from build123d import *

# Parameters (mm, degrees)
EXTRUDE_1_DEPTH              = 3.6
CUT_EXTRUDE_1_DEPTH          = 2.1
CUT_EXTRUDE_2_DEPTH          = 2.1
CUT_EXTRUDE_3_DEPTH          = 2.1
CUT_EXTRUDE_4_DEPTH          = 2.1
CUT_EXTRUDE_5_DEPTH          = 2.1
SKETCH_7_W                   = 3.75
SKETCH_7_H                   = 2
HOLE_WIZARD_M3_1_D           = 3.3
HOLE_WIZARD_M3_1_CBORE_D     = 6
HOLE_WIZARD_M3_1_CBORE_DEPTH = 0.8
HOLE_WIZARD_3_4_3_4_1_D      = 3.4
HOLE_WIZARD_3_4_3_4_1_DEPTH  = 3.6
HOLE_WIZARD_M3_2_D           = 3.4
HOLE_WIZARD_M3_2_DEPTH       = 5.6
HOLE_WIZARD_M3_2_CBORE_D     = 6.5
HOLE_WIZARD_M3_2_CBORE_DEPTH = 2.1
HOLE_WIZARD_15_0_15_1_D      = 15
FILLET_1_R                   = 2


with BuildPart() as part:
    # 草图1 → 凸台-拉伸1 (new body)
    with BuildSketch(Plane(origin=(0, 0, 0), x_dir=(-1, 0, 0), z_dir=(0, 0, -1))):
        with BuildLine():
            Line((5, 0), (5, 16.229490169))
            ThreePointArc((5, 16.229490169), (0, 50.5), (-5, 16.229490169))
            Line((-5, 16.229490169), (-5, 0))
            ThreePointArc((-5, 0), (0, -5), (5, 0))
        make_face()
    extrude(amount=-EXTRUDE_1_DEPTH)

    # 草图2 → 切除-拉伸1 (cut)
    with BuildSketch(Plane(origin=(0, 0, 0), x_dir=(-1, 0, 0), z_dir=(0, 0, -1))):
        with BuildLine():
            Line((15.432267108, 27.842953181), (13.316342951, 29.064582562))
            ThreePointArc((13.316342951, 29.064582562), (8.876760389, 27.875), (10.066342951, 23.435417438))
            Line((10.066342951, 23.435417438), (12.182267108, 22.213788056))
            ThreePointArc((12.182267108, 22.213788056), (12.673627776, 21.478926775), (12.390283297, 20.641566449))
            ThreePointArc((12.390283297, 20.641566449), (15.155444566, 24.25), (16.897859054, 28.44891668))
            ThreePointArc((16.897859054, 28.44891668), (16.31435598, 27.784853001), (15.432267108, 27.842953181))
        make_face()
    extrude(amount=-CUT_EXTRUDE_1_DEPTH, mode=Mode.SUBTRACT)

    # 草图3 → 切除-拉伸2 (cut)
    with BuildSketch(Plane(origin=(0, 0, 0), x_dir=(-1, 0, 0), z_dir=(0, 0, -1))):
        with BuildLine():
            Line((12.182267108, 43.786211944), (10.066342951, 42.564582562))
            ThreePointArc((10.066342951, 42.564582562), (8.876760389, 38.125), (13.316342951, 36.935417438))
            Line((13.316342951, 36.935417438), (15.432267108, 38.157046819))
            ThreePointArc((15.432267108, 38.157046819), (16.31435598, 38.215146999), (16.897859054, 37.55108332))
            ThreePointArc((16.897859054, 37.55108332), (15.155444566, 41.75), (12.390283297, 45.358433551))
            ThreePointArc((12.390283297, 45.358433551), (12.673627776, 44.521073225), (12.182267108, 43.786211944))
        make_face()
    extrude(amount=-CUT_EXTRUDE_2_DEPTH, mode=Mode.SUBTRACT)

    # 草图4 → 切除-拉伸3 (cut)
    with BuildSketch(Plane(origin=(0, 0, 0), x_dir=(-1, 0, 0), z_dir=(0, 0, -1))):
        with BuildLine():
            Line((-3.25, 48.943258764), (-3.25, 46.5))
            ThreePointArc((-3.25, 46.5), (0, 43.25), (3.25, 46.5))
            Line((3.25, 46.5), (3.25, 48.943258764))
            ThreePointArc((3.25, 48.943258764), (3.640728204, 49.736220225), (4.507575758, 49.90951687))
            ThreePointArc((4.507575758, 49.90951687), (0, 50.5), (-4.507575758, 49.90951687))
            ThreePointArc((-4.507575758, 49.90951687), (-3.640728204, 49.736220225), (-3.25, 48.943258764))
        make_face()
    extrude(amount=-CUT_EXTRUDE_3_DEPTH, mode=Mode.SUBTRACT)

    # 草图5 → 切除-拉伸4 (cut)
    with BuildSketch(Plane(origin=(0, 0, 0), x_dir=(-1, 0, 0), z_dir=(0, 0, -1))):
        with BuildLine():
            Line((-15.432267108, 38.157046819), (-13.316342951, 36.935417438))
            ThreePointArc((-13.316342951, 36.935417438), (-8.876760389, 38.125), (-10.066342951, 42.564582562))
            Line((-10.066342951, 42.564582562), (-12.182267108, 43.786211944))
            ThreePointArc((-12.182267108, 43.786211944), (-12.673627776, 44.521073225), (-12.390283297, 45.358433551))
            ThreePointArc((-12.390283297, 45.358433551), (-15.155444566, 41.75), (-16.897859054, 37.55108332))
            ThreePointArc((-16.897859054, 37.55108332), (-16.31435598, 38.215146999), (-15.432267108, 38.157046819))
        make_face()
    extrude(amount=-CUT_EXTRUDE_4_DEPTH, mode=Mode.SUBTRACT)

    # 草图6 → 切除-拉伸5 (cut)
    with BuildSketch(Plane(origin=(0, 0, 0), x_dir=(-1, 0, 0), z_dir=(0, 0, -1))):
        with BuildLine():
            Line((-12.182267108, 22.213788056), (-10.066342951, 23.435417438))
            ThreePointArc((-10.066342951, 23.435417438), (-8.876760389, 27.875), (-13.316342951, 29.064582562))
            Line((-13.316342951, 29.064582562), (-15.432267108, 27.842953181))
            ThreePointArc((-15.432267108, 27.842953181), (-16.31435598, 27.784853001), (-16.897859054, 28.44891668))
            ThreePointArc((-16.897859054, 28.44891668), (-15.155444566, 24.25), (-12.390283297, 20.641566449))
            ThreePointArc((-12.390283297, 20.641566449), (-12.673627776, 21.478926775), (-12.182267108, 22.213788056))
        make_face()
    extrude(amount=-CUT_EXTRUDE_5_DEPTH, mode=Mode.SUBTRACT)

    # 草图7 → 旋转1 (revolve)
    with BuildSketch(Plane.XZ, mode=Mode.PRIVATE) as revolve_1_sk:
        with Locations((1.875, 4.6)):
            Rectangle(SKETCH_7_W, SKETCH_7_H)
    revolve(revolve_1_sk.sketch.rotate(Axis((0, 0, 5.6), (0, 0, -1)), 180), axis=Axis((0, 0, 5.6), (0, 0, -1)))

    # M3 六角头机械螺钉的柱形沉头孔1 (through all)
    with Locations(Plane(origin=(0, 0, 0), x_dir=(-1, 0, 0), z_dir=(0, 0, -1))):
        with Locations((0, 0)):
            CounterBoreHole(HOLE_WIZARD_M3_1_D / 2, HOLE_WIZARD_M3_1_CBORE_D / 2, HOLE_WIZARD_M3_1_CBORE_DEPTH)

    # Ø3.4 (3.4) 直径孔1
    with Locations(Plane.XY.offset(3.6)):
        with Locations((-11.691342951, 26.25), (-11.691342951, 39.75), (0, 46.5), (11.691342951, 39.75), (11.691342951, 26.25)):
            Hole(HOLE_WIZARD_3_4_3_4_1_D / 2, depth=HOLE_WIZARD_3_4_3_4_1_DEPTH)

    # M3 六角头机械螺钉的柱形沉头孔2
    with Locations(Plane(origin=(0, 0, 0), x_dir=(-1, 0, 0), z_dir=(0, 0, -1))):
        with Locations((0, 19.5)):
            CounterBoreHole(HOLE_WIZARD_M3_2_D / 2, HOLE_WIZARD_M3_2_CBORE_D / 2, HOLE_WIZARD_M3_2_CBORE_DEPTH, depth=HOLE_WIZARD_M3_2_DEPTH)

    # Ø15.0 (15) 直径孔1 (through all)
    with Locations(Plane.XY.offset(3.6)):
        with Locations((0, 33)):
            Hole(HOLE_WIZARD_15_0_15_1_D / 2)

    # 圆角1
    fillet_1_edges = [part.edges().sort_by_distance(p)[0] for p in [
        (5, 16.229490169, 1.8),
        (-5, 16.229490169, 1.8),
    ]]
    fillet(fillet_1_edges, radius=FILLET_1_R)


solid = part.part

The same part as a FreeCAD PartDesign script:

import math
import FreeCAD as App
import Part
import Sketcher
from FreeCAD import Vector
Q = App.Units.Quantity


def edges_at(feature, points):
    """Names of the edges that pass closest to the given points."""
    edges = feature.Shape.Edges
    near = lambda p: min(range(len(edges)), key=lambda i: edges[i].distToShape(Part.Vertex(*p))[0])
    return sorted({f"Edge{near(p) + 1}" for p in points})


def add_polygon(sketch, points):
    """Adds a closed chain of lines whose ends are joined by coincident constraints."""
    first, n = sketch.GeometryCount, len(points)
    for a, b in zip(points, points[1:] + points[:1]):
        sketch.addGeometry(Part.LineSegment(App.Vector(*a, 0), App.Vector(*b, 0)), False)
    for i in range(n):
        sketch.addConstraint(Sketcher.Constraint("Coincident", first + i, 2, first + (i + 1) % n, 1))

doc = App.newDocument("Part")
body = doc.addObject("PartDesign::Body", "Body")

sketch1 = body.newObject("Sketcher::SketchObject", "Sketch")
sketch1.AttachmentSupport = (doc.getObject("XY_Plane"), [""])
sketch1.MapMode = "FlatFace"
sketch1.addGeometry([
    Part.LineSegment(Vector(-5, 0, 0), Vector(-5, 16.22949, 0)),
    Part.ArcOfCircle(Part.Circle(Vector(0, 33, 0), Vector(0, 0, 1), 17.5), math.radians(-73.39845), math.radians(253.39845)),
    Part.LineSegment(Vector(5, 16.22949, 0), Vector(5, 0, 0)),
    Part.ArcOfCircle(Part.Circle(Vector(0, 0, 0), Vector(0, 0, 1), 5), math.radians(180), math.radians(360)),
], False)
sketch1.addConstraint([
    Sketcher.Constraint("Coincident", 0, 2, 1, 2),
    Sketcher.Constraint("Coincident", 1, 1, 2, 1),
    Sketcher.Constraint("Tangent", 2, 2, 3, 2),
    Sketcher.Constraint("Tangent", 3, 1, 0, 1),
    Sketcher.Constraint("Vertical", 0),
    Sketcher.Constraint("Vertical", 2),
    Sketcher.Constraint("Coincident", 3, 3, -1, 1),
    Sketcher.Constraint("PointOnObject", 1, 3, -2),
    Sketcher.Constraint("Radius", 3, 5.0),
    Sketcher.Constraint("Radius", 1, 17.5),
    Sketcher.Constraint("DistanceY", -1, 1, 1, 3, 33.0),
])
pad1 = body.newObject("PartDesign::Pad", "Pad")
pad1.Profile = sketch1
pad1.Length = 3.6

sketch2 = body.newObject("Sketcher::SketchObject", "Sketch001")
sketch2.AttachmentSupport = (doc.getObject("XY_Plane"), [""])
sketch2.MapMode = "FlatFace"
sketch2.addGeometry([
    Part.LineSegment(Vector(-15.432267, 27.842953, 0), Vector(-13.316343, 29.064583, 0)),
    Part.ArcOfCircle(Part.Circle(Vector(-11.691343, 26.25, 0), Vector(0, 0, 1), 3.25), math.radians(-60), math.radians(120)),
    Part.LineSegment(Vector(-10.066343, 23.435417, 0), Vector(-12.182267, 22.213788, 0)),
    Part.ArcOfCircle(Part.Circle(Vector(-11.682267, 21.347763, 0), Vector(0, 0, 1), 1), math.radians(120), math.radians(224.926265)),
    Part.ArcOfCircle(Part.Circle(Vector(0, 33, 0), Vector(0, 0, 1), 17.5), math.radians(-164.926265), math.radians(-135.073735)),
    Part.ArcOfCircle(Part.Circle(Vector(-15.932267, 28.708979, 0), Vector(0, 0, 1), 1), math.radians(-164.926265), math.radians(-60)),
], False)
sketch2.addConstraint([
    Sketcher.Constraint("Tangent", 0, 2, 1, 2),
    Sketcher.Constraint("Tangent", 1, 1, 2, 1),
    Sketcher.Constraint("Tangent", 2, 2, 3, 1),
    Sketcher.Constraint("Tangent", 3, 2, 4, 2),
    Sketcher.Constraint("Tangent", 4, 1, 5, 1),
    Sketcher.Constraint("Tangent", 5, 2, 0, 1),
    Sketcher.Constraint("Equal", 3, 5),
    Sketcher.Constraint("PointOnObject", 4, 3, -2),
    Sketcher.Constraint("Parallel", 0, 2),
    Sketcher.Constraint("Equal", 0, 2),
    Sketcher.Constraint("Radius", 3, 1.0),
    Sketcher.Constraint("Radius", 4, 17.5),
    Sketcher.Constraint("Angle", 0, Q("30 deg")),
    Sketcher.Constraint("Radius", 1, 3.25),
    Sketcher.Constraint("DistanceY", -1, 1, 4, 3, 33.0),
    Sketcher.Constraint("DistanceY", -1, 1, 1, 3, 26.25),
])
pocket1 = body.newObject("PartDesign::Pocket", "Pocket")
pocket1.Profile = sketch2
pocket1.Length = 2.1
pocket1.Reversed = True

sketch3 = body.newObject("Sketcher::SketchObject", "Sketch002")
sketch3.AttachmentSupport = (doc.getObject("XY_Plane"), [""])
sketch3.MapMode = "FlatFace"
sketch3.addGeometry([
    Part.LineSegment(Vector(-12.182267, 43.786212, 0), Vector(-10.066343, 42.564583, 0)),
    Part.ArcOfCircle(Part.Circle(Vector(-11.691343, 39.75, 0), Vector(0, 0, 1), 3.25), math.radians(-120), math.radians(60)),
    Part.LineSegment(Vector(-13.316343, 36.935417, 0), Vector(-15.432267, 38.157047, 0)),
    Part.ArcOfCircle(Part.Circle(Vector(-15.932267, 37.291021, 0), Vector(0, 0, 1), 1), math.radians(60), math.radians(164.926265)),
    Part.ArcOfCircle(Part.Circle(Vector(0, 33, 0), Vector(0, 0, 1), 17.5), math.radians(135.073735), math.radians(164.926265)),
    Part.ArcOfCircle(Part.Circle(Vector(-11.682267, 44.652237, 0), Vector(0, 0, 1), 1), math.radians(135.073735), math.radians(240)),
], False)
sketch3.addConstraint([
    Sketcher.Constraint("Tangent", 0, 2, 1, 2),
    Sketcher.Constraint("Tangent", 1, 1, 2, 1),
    Sketcher.Constraint("Tangent", 2, 2, 3, 1),
    Sketcher.Constraint("Tangent", 3, 2, 4, 2),
    Sketcher.Constraint("Tangent", 4, 1, 5, 1),
    Sketcher.Constraint("Tangent", 5, 2, 0, 1),
    Sketcher.Constraint("Equal", 3, 5),
    Sketcher.Constraint("PointOnObject", 4, 3, -2),
    Sketcher.Constraint("Parallel", 0, 2),
    Sketcher.Constraint("Equal", 0, 2),
    Sketcher.Constraint("Radius", 3, 1.0),
    Sketcher.Constraint("Radius", 4, 17.5),
    Sketcher.Constraint("Angle", 0, Q("-30 deg")),
    Sketcher.Constraint("Radius", 1, 3.25),
    Sketcher.Constraint("DistanceY", -1, 1, 4, 3, 33.0),
    Sketcher.Constraint("DistanceY", -1, 1, 1, 3, 39.75),
])
pocket2 = body.newObject("PartDesign::Pocket", "Pocket001")
pocket2.Profile = sketch3
pocket2.Length = 2.1
pocket2.Reversed = True

sketch4 = body.newObject("Sketcher::SketchObject", "Sketch003")
sketch4.AttachmentSupport = (doc.getObject("XY_Plane"), [""])
sketch4.MapMode = "FlatFace"
sketch4.addGeometry([
    Part.LineSegment(Vector(3.25, 48.943259, 0), Vector(3.25, 46.5, 0)),
    Part.ArcOfCircle(Part.Circle(Vector(0, 46.5, 0), Vector(0, 0, 1), 3.25), math.radians(180), math.radians(360)),
    Part.LineSegment(Vector(-3.25, 46.5, 0), Vector(-3.25, 48.943259, 0)),
    Part.ArcOfCircle(Part.Circle(Vector(-4.25, 48.943259, 0), Vector(0, 0, 1), 1), math.radians(0), math.radians(104.926265)),
    Part.ArcOfCircle(Part.Circle(Vector(0, 33, 0), Vector(0, 0, 1), 17.5), math.radians(75.073735), math.radians(104.926265)),
    Part.ArcOfCircle(Part.Circle(Vector(4.25, 48.943259, 0), Vector(0, 0, 1), 1), math.radians(75.073735), math.radians(180)),
], False)
sketch4.addConstraint([
    Sketcher.Constraint("Tangent", 0, 2, 1, 2),
    Sketcher.Constraint("Tangent", 1, 1, 2, 1),
    Sketcher.Constraint("Tangent", 2, 2, 3, 1),
    Sketcher.Constraint("Tangent", 3, 2, 4, 2),
    Sketcher.Constraint("Tangent", 4, 1, 5, 1),
    Sketcher.Constraint("Tangent", 5, 2, 0, 1),
    Sketcher.Constraint("Vertical", 0),
    Sketcher.Constraint("Vertical", 2),
    Sketcher.Constraint("Equal", 3, 5),
    Sketcher.Constraint("Symmetric", 3, 3, 5, 3, -2),
    Sketcher.Constraint("Radius", 3, 1.0),
    Sketcher.Constraint("Radius", 4, 17.5),
    Sketcher.Constraint("Radius", 1, 3.25),
    Sketcher.Constraint("DistanceY", -1, 1, 4, 3, 33.0),
    Sketcher.Constraint("DistanceY", -1, 1, 1, 3, 46.5),
])
pocket3 = body.newObject("PartDesign::Pocket", "Pocket002")
pocket3.Profile = sketch4
pocket3.Length = 2.1
pocket3.Reversed = True

sketch5 = body.newObject("Sketcher::SketchObject", "Sketch004")
sketch5.AttachmentSupport = (doc.getObject("XY_Plane"), [""])
sketch5.MapMode = "FlatFace"
sketch5.addGeometry([
    Part.LineSegment(Vector(15.432267, 38.157047, 0), Vector(13.316343, 36.935417, 0)),
    Part.ArcOfCircle(Part.Circle(Vector(11.691343, 39.75, 0), Vector(0, 0, 1), 3.25), math.radians(120), math.radians(300)),
    Part.LineSegment(Vector(10.066343, 42.564583, 0), Vector(12.182267, 43.786212, 0)),
    Part.ArcOfCircle(Part.Circle(Vector(11.682267, 44.652237, 0), Vector(0, 0, 1), 1), math.radians(-60), math.radians(44.926265)),
    Part.ArcOfCircle(Part.Circle(Vector(0, 33, 0), Vector(0, 0, 1), 17.5), math.radians(15.073735), math.radians(44.926265)),
    Part.ArcOfCircle(Part.Circle(Vector(15.932267, 37.291021, 0), Vector(0, 0, 1), 1), math.radians(15.073735), math.radians(120)),
], False)
sketch5.addConstraint([
    Sketcher.Constraint("Tangent", 0, 2, 1, 2),
    Sketcher.Constraint("Tangent", 1, 1, 2, 1),
    Sketcher.Constraint("Tangent", 2, 2, 3, 1),
    Sketcher.Constraint("Tangent", 3, 2, 4, 2),
    Sketcher.Constraint("Tangent", 4, 1, 5, 1),
    Sketcher.Constraint("Tangent", 5, 2, 0, 1),
    Sketcher.Constraint("Equal", 3, 5),
    Sketcher.Constraint("PointOnObject", 4, 3, -2),
    Sketcher.Constraint("Parallel", 0, 2),
    Sketcher.Constraint("Equal", 0, 2),
    Sketcher.Constraint("Radius", 3, 1.0),
    Sketcher.Constraint("Radius", 4, 17.5),
    Sketcher.Constraint("Angle", 0, Q("-150 deg")),
    Sketcher.Constraint("Radius", 1, 3.25),
    Sketcher.Constraint("DistanceY", -1, 1, 4, 3, 33.0),
    Sketcher.Constraint("DistanceY", -1, 1, 1, 3, 39.75),
])
pocket4 = body.newObject("PartDesign::Pocket", "Pocket003")
pocket4.Profile = sketch5
pocket4.Length = 2.1
pocket4.Reversed = True

sketch6 = body.newObject("Sketcher::SketchObject", "Sketch005")
sketch6.AttachmentSupport = (doc.getObject("XY_Plane"), [""])
sketch6.MapMode = "FlatFace"
sketch6.addGeometry([
    Part.LineSegment(Vector(12.182267, 22.213788, 0), Vector(10.066343, 23.435417, 0)),
    Part.ArcOfCircle(Part.Circle(Vector(11.691343, 26.25, 0), Vector(0, 0, 1), 3.25), math.radians(60), math.radians(240)),
    Part.LineSegment(Vector(13.316343, 29.064583, 0), Vector(15.432267, 27.842953, 0)),
    Part.ArcOfCircle(Part.Circle(Vector(15.932267, 28.708979, 0), Vector(0, 0, 1), 1), math.radians(-120), math.radians(-15.073735)),
    Part.ArcOfCircle(Part.Circle(Vector(0, 33, 0), Vector(0, 0, 1), 17.5), math.radians(-44.926265), math.radians(-15.073735)),
    Part.ArcOfCircle(Part.Circle(Vector(11.682267, 21.347763, 0), Vector(0, 0, 1), 1), math.radians(-44.926265), math.radians(60)),
], False)
sketch6.addConstraint([
    Sketcher.Constraint("Tangent", 0, 2, 1, 2),
    Sketcher.Constraint("Tangent", 1, 1, 2, 1),
    Sketcher.Constraint("Tangent", 2, 2, 3, 1),
    Sketcher.Constraint("Tangent", 3, 2, 4, 2),
    Sketcher.Constraint("Tangent", 4, 1, 5, 1),
    Sketcher.Constraint("Tangent", 5, 2, 0, 1),
    Sketcher.Constraint("Equal", 3, 5),
    Sketcher.Constraint("PointOnObject", 4, 3, -2),
    Sketcher.Constraint("Parallel", 0, 2),
    Sketcher.Constraint("Equal", 0, 2),
    Sketcher.Constraint("Radius", 3, 1.0),
    Sketcher.Constraint("Radius", 4, 17.5),
    Sketcher.Constraint("Angle", 0, Q("150 deg")),
    Sketcher.Constraint("Radius", 1, 3.25),
    Sketcher.Constraint("DistanceY", -1, 1, 4, 3, 33.0),
    Sketcher.Constraint("DistanceY", -1, 1, 1, 3, 26.25),
])
pocket5 = body.newObject("PartDesign::Pocket", "Pocket004")
pocket5.Profile = sketch6
pocket5.Length = 2.1
pocket5.Reversed = True

sketch7 = body.newObject("Sketcher::SketchObject", "Sketch006")
sketch7.AttachmentSupport = (doc.getObject("XZ_Plane"), [""])
sketch7.MapMode = "FlatFace"
add_polygon(sketch7, [(0, 5.6), (0, 3.6), (3.75, 3.6), (3.75, 5.6)])
sketch7.addConstraint([
    Sketcher.Constraint("Vertical", 0),
    Sketcher.Constraint("Horizontal", 1),
    Sketcher.Constraint("Vertical", 2),
    Sketcher.Constraint("Horizontal", 3),
    Sketcher.Constraint("PointOnObject", 0, 2, -2),
    Sketcher.Constraint("DistanceY", 0, 2, 0, 1, 2.0),
    Sketcher.Constraint("DistanceX", 1, 1, 1, 2, 3.75),
    Sketcher.Constraint("DistanceY", -1, 1, 0, 2, 3.6),
])
revolution = body.newObject("PartDesign::Revolution", "Revolution")
revolution.Profile = sketch7
revolution.ReferenceAxis = (sketch7, ["V_Axis"])
revolution.Angle = 360

sketch8 = body.newObject("Sketcher::SketchObject", "Sketch007")
sketch8.AttachmentSupport = (doc.getObject("XY_Plane"), [""])
sketch8.MapMode = "FlatFace"
sketch8.addGeometry(Part.Circle(Vector(0, 0, 0), Vector(0, 0, 1), 1.65), False)
sketch8.addConstraint([
    Sketcher.Constraint("Coincident", 0, 3, -1, 1),
    Sketcher.Constraint("Diameter", 0, 3.3),
])
doc.recompute()
hole = body.newObject("PartDesign::Hole", "Hole")
hole.Profile = sketch8
hole.ThreadType = "None"
hole.Diameter = 3.3
hole.DepthType = "ThroughAll"
hole.HoleCutType = "Counterbore"
hole.HoleCutDiameter = 6
hole.HoleCutDepth = 0.8
hole.Reversed = True

sketch9 = body.newObject("Sketcher::SketchObject", "Sketch008")
sketch9.AttachmentSupport = (doc.getObject("XY_Plane"), [""])
sketch9.MapMode = "FlatFace"
sketch9.AttachmentOffset = App.Placement(Vector(0, 0, 3.6), App.Rotation())
sketch9.addGeometry([
    Part.Circle(Vector(-11.691343, 26.25, 0), Vector(0, 0, 1), 1.7),
    Part.Circle(Vector(-11.691343, 39.75, 0), Vector(0, 0, 1), 1.7),
    Part.Circle(Vector(0, 46.5, 0), Vector(0, 0, 1), 1.7),
    Part.Circle(Vector(11.691343, 39.75, 0), Vector(0, 0, 1), 1.7),
    Part.Circle(Vector(11.691343, 26.25, 0), Vector(0, 0, 1), 1.7),
], False)
sketch9.addConstraint([
    Sketcher.Constraint("Equal", 0, 1),
    Sketcher.Constraint("Equal", 1, 2),
    Sketcher.Constraint("Equal", 2, 3),
    Sketcher.Constraint("Equal", 3, 4),
    Sketcher.Constraint("Symmetric", 1, 3, 3, 3, -2),
    Sketcher.Constraint("Symmetric", 0, 3, 4, 3, -2),
    Sketcher.Constraint("PointOnObject", 2, 3, -2),
    Sketcher.Constraint("Vertical", 0, 3, 1, 3),
    Sketcher.Constraint("Diameter", 0, 3.4),
    Sketcher.Constraint("DistanceY", -1, 1, 2, 3, 46.5),
    Sketcher.Constraint("DistanceY", 0, 3, 1, 3, 13.5),
    Sketcher.Constraint("DistanceY", -1, 1, 0, 3, 26.25),
    Sketcher.Constraint("DistanceX", 0, 3, -1, 1, 11.691343),
])
doc.recompute()
hole2 = body.newObject("PartDesign::Hole", "Hole001")
hole2.Profile = sketch9
hole2.ThreadType = "None"
hole2.Diameter = 3.4
hole2.DepthType = "Dimension"
hole2.Depth = 3.6
hole2.DrillPoint = "Flat"

sketch10 = body.newObject("Sketcher::SketchObject", "Sketch009")
sketch10.AttachmentSupport = (doc.getObject("XY_Plane"), [""])
sketch10.MapMode = "FlatFace"
sketch10.addGeometry(Part.Circle(Vector(0, 19.5, 0), Vector(0, 0, 1), 1.7), False)
sketch10.addConstraint([
    Sketcher.Constraint("PointOnObject", 0, 3, -2),
    Sketcher.Constraint("Diameter", 0, 3.4),
    Sketcher.Constraint("DistanceY", -1, 1, 0, 3, 19.5),
])
doc.recompute()
hole3 = body.newObject("PartDesign::Hole", "Hole002")
hole3.Profile = sketch10
hole3.ThreadType = "None"
hole3.Diameter = 3.4
hole3.DepthType = "Dimension"
hole3.Depth = 5.6
hole3.DrillPoint = "Flat"
hole3.HoleCutType = "Counterbore"
hole3.HoleCutDiameter = 6.5
hole3.HoleCutDepth = 2.1
hole3.Reversed = True

sketch11 = body.newObject("Sketcher::SketchObject", "Sketch010")
sketch11.AttachmentSupport = (doc.getObject("XY_Plane"), [""])
sketch11.MapMode = "FlatFace"
sketch11.AttachmentOffset = App.Placement(Vector(0, 0, 3.6), App.Rotation())
sketch11.addGeometry(Part.Circle(Vector(0, 33, 0), Vector(0, 0, 1), 7.5), False)
sketch11.addConstraint([
    Sketcher.Constraint("PointOnObject", 0, 3, -2),
    Sketcher.Constraint("Diameter", 0, 15.0),
    Sketcher.Constraint("DistanceY", -1, 1, 0, 3, 33.0),
])
doc.recompute()
hole4 = body.newObject("PartDesign::Hole", "Hole003")
hole4.Profile = sketch11
hole4.ThreadType = "None"
hole4.Diameter = 15
hole4.DepthType = "ThroughAll"
doc.recompute()

fillet = body.newObject("PartDesign::Fillet", "Fillet")
fillet.Base = (hole4, edges_at(hole4, [(5, 16.229, 1.8), (-5, 16.229, 1.8)]))
fillet.Radius = 2

doc.recompute()
